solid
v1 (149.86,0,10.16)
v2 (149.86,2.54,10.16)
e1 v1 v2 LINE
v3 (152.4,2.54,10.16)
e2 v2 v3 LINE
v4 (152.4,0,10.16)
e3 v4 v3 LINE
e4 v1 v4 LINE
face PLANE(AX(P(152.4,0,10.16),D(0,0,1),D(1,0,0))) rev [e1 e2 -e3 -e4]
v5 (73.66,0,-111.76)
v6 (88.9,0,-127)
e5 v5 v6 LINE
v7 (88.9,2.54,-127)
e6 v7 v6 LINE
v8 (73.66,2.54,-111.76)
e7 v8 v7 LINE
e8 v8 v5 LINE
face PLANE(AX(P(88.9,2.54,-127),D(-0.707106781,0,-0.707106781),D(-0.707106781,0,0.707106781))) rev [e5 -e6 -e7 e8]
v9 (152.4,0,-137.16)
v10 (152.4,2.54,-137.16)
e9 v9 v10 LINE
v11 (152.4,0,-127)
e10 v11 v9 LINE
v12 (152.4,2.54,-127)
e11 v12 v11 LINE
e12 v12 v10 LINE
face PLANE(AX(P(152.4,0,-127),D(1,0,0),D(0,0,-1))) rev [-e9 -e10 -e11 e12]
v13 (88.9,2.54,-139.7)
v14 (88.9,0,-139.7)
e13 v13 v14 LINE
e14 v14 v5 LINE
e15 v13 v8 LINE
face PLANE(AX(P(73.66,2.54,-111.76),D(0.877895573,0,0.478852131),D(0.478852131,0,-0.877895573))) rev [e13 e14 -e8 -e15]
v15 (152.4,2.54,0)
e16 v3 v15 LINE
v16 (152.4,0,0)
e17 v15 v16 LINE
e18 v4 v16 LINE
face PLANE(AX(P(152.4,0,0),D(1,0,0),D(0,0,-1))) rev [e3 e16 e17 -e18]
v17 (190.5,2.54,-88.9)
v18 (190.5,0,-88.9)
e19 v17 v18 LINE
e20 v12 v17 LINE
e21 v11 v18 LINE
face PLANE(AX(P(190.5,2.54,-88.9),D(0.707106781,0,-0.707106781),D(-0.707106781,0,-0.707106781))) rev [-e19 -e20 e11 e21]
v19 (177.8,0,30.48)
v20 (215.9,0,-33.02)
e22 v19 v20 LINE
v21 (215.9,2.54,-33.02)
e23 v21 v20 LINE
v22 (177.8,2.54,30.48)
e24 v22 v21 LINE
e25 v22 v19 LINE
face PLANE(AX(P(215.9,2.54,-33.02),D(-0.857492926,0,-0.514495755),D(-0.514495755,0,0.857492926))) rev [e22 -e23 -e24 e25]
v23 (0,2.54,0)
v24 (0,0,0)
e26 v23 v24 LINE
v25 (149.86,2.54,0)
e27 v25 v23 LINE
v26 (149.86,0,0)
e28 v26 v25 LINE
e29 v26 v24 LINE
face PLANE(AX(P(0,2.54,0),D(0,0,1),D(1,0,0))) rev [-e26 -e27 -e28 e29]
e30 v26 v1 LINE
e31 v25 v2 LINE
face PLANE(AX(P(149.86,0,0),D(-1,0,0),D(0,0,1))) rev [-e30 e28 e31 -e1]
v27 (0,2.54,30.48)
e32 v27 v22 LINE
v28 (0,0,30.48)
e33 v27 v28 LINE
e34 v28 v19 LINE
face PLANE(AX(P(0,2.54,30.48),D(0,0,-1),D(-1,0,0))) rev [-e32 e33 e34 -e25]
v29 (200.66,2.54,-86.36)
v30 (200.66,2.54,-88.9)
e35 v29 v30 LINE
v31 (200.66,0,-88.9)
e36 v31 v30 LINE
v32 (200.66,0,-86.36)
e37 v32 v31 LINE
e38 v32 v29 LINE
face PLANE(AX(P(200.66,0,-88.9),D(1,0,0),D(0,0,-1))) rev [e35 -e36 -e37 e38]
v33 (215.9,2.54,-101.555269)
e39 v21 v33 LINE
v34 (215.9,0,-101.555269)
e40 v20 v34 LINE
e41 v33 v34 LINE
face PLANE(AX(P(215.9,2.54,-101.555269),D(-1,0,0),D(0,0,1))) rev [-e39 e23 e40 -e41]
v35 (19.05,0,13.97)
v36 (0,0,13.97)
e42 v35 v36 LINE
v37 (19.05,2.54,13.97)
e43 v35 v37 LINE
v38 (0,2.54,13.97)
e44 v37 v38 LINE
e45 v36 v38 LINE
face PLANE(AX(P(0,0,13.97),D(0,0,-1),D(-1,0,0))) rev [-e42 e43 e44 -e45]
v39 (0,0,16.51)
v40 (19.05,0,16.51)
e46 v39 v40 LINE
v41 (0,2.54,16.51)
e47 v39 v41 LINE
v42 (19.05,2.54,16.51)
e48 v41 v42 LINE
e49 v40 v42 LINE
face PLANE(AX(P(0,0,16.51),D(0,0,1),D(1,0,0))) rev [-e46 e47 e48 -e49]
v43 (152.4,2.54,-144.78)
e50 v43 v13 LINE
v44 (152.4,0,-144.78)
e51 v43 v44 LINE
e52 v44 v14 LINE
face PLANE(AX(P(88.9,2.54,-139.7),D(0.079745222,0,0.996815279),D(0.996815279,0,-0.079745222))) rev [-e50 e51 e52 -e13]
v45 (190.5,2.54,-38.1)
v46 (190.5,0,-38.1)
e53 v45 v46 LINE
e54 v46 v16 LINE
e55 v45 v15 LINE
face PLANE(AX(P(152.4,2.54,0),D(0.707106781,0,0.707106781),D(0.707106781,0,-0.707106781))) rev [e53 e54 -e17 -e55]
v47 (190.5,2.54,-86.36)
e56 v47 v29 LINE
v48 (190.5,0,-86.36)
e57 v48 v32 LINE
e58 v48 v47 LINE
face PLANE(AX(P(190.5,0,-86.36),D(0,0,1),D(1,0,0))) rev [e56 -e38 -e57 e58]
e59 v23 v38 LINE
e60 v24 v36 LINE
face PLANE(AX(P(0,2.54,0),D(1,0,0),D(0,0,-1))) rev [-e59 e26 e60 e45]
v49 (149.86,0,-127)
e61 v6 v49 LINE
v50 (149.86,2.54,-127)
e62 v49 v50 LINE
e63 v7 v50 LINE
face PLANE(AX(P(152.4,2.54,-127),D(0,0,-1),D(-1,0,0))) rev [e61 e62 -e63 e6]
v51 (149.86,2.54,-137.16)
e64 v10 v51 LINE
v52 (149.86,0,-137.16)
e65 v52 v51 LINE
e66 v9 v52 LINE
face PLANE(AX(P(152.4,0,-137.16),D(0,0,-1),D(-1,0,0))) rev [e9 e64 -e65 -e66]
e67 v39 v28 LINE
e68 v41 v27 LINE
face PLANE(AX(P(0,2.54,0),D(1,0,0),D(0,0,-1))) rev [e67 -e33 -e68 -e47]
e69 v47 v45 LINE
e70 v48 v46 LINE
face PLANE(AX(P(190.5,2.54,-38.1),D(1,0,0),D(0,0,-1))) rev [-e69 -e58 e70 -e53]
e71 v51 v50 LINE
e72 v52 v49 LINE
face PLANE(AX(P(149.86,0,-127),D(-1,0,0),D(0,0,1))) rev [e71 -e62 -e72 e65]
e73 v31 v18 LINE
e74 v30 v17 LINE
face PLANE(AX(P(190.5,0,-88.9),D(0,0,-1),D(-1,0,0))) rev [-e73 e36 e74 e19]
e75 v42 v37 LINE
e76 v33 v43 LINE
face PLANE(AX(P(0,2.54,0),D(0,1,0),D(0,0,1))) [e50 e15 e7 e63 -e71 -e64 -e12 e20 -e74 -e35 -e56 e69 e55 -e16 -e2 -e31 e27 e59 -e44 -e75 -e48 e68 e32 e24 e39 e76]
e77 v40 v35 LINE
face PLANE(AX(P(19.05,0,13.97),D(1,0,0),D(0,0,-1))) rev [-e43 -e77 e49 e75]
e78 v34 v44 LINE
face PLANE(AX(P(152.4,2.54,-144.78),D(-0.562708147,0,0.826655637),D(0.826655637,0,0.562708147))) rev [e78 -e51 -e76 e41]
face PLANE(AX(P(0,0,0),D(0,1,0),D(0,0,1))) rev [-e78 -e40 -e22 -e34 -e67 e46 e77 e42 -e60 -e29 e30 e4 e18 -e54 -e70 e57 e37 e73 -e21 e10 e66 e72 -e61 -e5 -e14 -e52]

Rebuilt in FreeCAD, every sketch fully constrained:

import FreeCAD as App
import Part
import Sketcher

V = App.Vector
Q = App.Units.Quantity


def add_polygon(sketch, points):
    """Adds a closed chain of lines whose ends are joined by coincident constraints."""
    first, n = sketch.GeometryCount, len(points)
    for a, b in zip(points, points[1:] + points[:1]):
        sketch.addGeometry(Part.LineSegment(App.Vector(*a, 0), App.Vector(*b, 0)), False)
    for i in range(n):
        sketch.addConstraint(Sketcher.Constraint("Coincident", first + i, 2, first + (i + 1) % n, 1))

doc = App.newDocument("Part")
body = doc.addObject("PartDesign::Body", "Body")

# Sketch on XZ plane
sketch1 = body.newObject("Sketcher::SketchObject", "Sketch")
sketch1.AttachmentSupport = (doc.getObject("XZ_Plane"), [""])
sketch1.MapMode = "FlatFace"
add_polygon(sketch1, [(0, 0), (0, 30.48), (177.8, 30.48), (215.9, -33.02), (215.9, -101.555269), (152.4, -144.78), (88.9, -139.7), (73.66, -111.76), (88.9, -127), (152.4, -127), (190.5, -88.9), (190.5, -38.1), (152.4, 0)])  # lines 0-12
sketch1.addConstraint(Sketcher.Constraint("Vertical", 0))
sketch1.addConstraint(Sketcher.Constraint("Horizontal", 1))
sketch1.addConstraint(Sketcher.Constraint("Vertical", 3))
sketch1.addConstraint(Sketcher.Constraint("Horizontal", 8))
sketch1.addConstraint(Sketcher.Constraint("Vertical", 10))
sketch1.addConstraint(Sketcher.Constraint("Horizontal", 12))
sketch1.addConstraint(Sketcher.Constraint("Coincident", 12, 2, -1, 1))
sketch1.addConstraint(Sketcher.Constraint("Perpendicular", 7, 9))
sketch1.addConstraint(Sketcher.Constraint("Perpendicular", 9, 11))
sketch1.addConstraint(Sketcher.Constraint("Vertical", 5, 2, 7, 2))
sketch1.addConstraint(Sketcher.Constraint("Vertical", 4, 2, 8, 2))
sketch1.addConstraint(Sketcher.Constraint("Vertical", 8, 2, 11, 2))
sketch1.addConstraint(Sketcher.Constraint("Equal", 9, 11))
sketch1.addConstraint(Sketcher.Constraint("DistanceX", 1, 1, 1, 2, Q("7 in")))
sketch1.addConstraint(Sketcher.Constraint("DistanceX", 12, 2, 12, 1, Q("6 in")))
sketch1.addConstraint(Sketcher.Constraint("DistanceY", 10, 1, 10, 2, Q("2 in")))
sketch1.addConstraint(Sketcher.Constraint("DistanceX", 8, 1, 8, 2, Q("2.5 in")))
sketch1.addConstraint(Sketcher.Constraint("DistanceY", 0, 1, 0, 2, Q("1.2 in")))
sketch1.addConstraint(Sketcher.Constraint("DistanceY", 7, 2, -1, 1, Q("5 in")))
sketch1.addConstraint(Sketcher.Constraint("DistanceX", 5, 2, 3, 2, Q("5 in")))
sketch1.addConstraint(Sketcher.Constraint("DistanceY", 2, 2, -1, 1, Q("1.3 in")))
sketch1.addConstraint(Sketcher.Constraint("DistanceY", 4, 2, -1, 1, Q("5.7 in")))
sketch1.addConstraint(Sketcher.Constraint("DistanceY", 5, 2, -1, 1, Q("5.5 in")))
sketch1.addConstraint(Sketcher.Constraint("DistanceX", -1, 1, 6, 2, Q("2.9 in")))
sketch1.addConstraint(Sketcher.Constraint("DistanceY", 3, 2, 3, 1, Q("68.535269 mm")))
pad1 = body.newObject("PartDesign::Pad", "Pad")
pad1.Profile = sketch1
pad1.Length = Q("0.1 in")
pad1.Reversed = True

# Sketch on XZ plane
sketch2 = body.newObject("Sketcher::SketchObject", "Sketch001")
sketch2.AttachmentSupport = (doc.getObject("XZ_Plane"), [""])
sketch2.MapMode = "FlatFace"
sketch2.AttachmentOffset = App.Placement(V(0, 0, -0.1 * 25.4), App.Rotation())
add_polygon(sketch2, [(0, 13.97), (0, 16.51), (19.05, 16.51), (19.05, 13.97)])  # lines 0-3
add_polygon(sketch2, [(149.86, 0), (149.86, 10.16), (152.4, 10.16), (152.4, 0)])  # lines 4-7
add_polygon(sketch2, [(190.5, -88.9), (190.5, -86.36), (200.66, -86.36), (200.66, -88.9)])  # lines 8-11
add_polygon(sketch2, [(149.86, -137.16), (149.86, -127), (152.4, -127), (152.4, -137.16)])  # lines 12-15
sketch2.addConstraint(Sketcher.Constraint("Vertical", 0))
sketch2.addConstraint(Sketcher.Constraint("Horizontal", 1))
sketch2.addConstraint(Sketcher.Constraint("Vertical", 2))
sketch2.addConstraint(Sketcher.Constraint("Horizontal", 3))
sketch2.addConstraint(Sketcher.Constraint("Vertical", 4))
sketch2.addConstraint(Sketcher.Constraint("Horizontal", 5))
sketch2.addConstraint(Sketcher.Constraint("Vertical", 6))
sketch2.addConstraint(Sketcher.Constraint("Horizontal", 7))
sketch2.addConstraint(Sketcher.Constraint("Vertical", 8))
sketch2.addConstraint(Sketcher.Constraint("Horizontal", 9))
sketch2.addConstraint(Sketcher.Constraint("Vertical", 10))
sketch2.addConstraint(Sketcher.Constraint("Horizontal", 11))
sketch2.addConstraint(Sketcher.Constraint("Vertical", 12))
sketch2.addConstraint(Sketcher.Constraint("Horizontal", 13))
sketch2.addConstraint(Sketcher.Constraint("Vertical", 14))
sketch2.addConstraint(Sketcher.Constraint("Horizontal", 15))
sketch2.addConstraint(Sketcher.Constraint("PointOnObject", 0, 2, -2))
sketch2.addConstraint(Sketcher.Constraint("PointOnObject", 6, 2, -1))
sketch2.addConstraint(Sketcher.Constraint("Vertical", 7, 2, 12, 2))
sketch2.addConstraint(Sketcher.Constraint("Vertical", 6, 2, 13, 2))
sketch2.addConstraint(Sketcher.Constraint("Equal", 15, 0))
sketch2.addConstraint(Sketcher.Constraint("Equal", 11, 4))
sketch2.addConstraint(Sketcher.Constraint("Equal", 2, 8))
sketch2.addConstraint(Sketcher.Constraint("Equal", 6, 12))
sketch2.addConstraint(Sketcher.Constraint("DistanceX", 5, 1, 5, 2, Q("0.1 in")))
sketch2.addConstraint(Sketcher.Constraint("DistanceX", 9, 1, 9, 2, Q("0.4 in")))
sketch2.addConstraint(Sketcher.Constraint("DistanceX", -1, 1, 5, 2, Q("6 in")))
sketch2.addConstraint(Sketcher.Constraint("DistanceY", 12, 2, -1, 1, Q("5 in")))
sketch2.addConstraint(Sketcher.Constraint("DistanceX", 7, 2, 9, 2, Q("2 in")))
sketch2.addConstraint(Sketcher.Constraint("DistanceY", 14, 2, 8, 2, Q("2 in")))
sketch2.addConstraint(Sketcher.Constraint("DistanceX", 1, 1, 1, 2, Q("0.75 in")))
sketch2.addConstraint(Sketcher.Constraint("DistanceY", -1, 1, 0, 2, Q("0.65 in")))
pocket1 = body.newObject("PartDesign::Pocket", "Pocket")
pocket1.Profile = sketch2
pocket1.Type = "ThroughAll"
pocket1.Reversed = True

doc.recompute()
